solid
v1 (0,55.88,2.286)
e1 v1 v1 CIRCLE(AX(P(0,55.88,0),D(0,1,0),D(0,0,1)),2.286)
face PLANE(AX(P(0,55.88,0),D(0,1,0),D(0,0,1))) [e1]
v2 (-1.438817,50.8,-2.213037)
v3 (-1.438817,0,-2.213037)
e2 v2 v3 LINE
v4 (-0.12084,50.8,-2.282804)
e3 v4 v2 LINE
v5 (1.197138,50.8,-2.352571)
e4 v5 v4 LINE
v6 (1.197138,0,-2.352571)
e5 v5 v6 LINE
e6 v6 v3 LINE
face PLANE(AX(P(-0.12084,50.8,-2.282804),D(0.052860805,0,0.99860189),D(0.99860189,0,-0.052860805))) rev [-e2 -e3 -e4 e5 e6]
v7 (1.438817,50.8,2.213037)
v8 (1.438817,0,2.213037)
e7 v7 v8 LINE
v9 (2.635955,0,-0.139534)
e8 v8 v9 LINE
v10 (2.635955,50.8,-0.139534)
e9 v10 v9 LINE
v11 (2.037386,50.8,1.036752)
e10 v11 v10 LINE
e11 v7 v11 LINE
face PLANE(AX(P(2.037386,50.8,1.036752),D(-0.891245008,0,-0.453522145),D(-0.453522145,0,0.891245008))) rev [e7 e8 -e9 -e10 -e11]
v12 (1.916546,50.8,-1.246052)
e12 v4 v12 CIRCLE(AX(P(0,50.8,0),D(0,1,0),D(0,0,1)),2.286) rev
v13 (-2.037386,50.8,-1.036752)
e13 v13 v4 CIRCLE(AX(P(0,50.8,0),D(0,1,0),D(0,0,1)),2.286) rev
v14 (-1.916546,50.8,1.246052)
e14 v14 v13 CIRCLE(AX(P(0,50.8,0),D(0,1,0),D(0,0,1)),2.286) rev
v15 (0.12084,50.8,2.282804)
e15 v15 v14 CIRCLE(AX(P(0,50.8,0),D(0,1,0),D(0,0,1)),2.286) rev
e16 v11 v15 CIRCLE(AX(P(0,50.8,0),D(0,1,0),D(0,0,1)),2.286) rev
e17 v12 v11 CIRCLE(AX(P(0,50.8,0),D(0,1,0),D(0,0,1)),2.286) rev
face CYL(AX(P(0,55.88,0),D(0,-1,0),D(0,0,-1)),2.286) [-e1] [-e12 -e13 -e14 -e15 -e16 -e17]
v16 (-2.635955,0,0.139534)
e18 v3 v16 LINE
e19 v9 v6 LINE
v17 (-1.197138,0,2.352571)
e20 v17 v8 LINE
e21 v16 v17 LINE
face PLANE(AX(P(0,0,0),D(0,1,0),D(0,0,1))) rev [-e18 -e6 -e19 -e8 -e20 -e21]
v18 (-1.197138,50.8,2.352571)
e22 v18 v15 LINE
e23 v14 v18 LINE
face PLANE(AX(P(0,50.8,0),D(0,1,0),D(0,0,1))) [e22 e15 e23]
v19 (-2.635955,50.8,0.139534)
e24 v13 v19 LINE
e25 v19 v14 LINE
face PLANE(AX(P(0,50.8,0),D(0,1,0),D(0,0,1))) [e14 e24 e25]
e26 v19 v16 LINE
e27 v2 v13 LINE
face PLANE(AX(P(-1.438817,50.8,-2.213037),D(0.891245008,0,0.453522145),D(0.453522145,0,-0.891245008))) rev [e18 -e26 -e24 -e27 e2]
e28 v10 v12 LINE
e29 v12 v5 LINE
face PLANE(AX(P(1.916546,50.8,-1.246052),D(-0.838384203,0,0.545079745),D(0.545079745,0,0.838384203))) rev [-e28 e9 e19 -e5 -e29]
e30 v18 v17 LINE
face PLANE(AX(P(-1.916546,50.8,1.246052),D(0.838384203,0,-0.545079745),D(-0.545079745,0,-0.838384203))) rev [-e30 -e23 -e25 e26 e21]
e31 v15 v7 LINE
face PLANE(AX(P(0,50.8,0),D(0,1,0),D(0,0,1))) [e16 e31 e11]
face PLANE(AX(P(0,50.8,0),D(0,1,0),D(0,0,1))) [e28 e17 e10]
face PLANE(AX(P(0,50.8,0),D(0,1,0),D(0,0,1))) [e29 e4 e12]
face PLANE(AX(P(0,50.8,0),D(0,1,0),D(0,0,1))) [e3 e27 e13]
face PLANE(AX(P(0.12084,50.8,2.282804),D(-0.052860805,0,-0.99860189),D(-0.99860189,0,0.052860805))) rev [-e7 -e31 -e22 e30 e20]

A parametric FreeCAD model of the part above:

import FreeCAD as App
import Part
import Sketcher
from FreeCAD import Vector
Q = App.Units.Quantity


def add_polygon(sketch, points):
    """Adds a closed chain of lines whose ends are joined by coincident constraints."""
    first, n = sketch.GeometryCount, len(points)
    for a, b in zip(points, points[1:] + points[:1]):
        sketch.addGeometry(Part.LineSegment(App.Vector(*a, 0), App.Vector(*b, 0)), False)
    for i in range(n):
        sketch.addConstraint(Sketcher.Constraint("Coincident", first + i, 2, first + (i + 1) % n, 1))

doc = App.newDocument("Part")
body = doc.addObject("PartDesign::Body", "Body")

# Sketch on XZ plane
sketch1 = body.newObject("Sketcher::SketchObject", "Sketch")
sketch1.AttachmentSupport = (doc.getObject("XZ_Plane"), [""])
sketch1.MapMode = "FlatFace"
add_polygon(sketch1, [(1.4, 2.2), (2.6, -0.1), (1.2, -2.4), (-1.4, -2.2), (-2.6, 0.1), (-1.2, 2.4)])  # lines 0-5
sketch1.addConstraint(Sketcher.Constraint("Symmetric", 0, 2, 3, 2, -1, 1))
sketch1.addConstraint(Sketcher.Constraint("Symmetric", 1, 2, 4, 2, -1, 1))
sketch1.addConstraint(Sketcher.Constraint("Symmetric", 2, 2, 5, 2, -1, 1))
sketch1.addConstraint(Sketcher.Constraint("Equal", 0, 1))
sketch1.addConstraint(Sketcher.Constraint("Equal", 1, 2))
sketch1.addConstraint(Sketcher.Constraint("DistanceY", 1, 2, -1, 1, Q("2.352571 mm")))
sketch1.addConstraint(Sketcher.Constraint("DistanceY", 2, 2, 3, 2, Q("2.352571 mm")))
sketch1.addConstraint(Sketcher.Constraint("DistanceX", 3, 2, 0, 2, Q("5.27191 mm")))
sketch1.addConstraint(Sketcher.Constraint("DistanceX", 2, 2, 4, 2, Q("0.24168 mm")))
pad1 = body.newObject("PartDesign::Pad", "Pad")
pad1.Profile = sketch1
pad1.Length = Q("2 in")
pad1.Reversed = True

# Sketch on XZ plane
sketch2 = body.newObject("Sketcher::SketchObject", "Sketch001")
sketch2.AttachmentSupport = (doc.getObject("XZ_Plane"), [""])
sketch2.MapMode = "FlatFace"
sketch2.addGeometry(Part.Circle(Vector(0, 0, 0), Vector(0, 0, 1), 2.3), False)
sketch2.addConstraint(Sketcher.Constraint("Coincident", 0, 3, -1, 1))
sketch2.addConstraint(Sketcher.Constraint("Diameter", 0, Q("0.18 in")))
pad2 = body.newObject("PartDesign::Pad", "Pad001")
pad2.Profile = sketch2
pad2.Length = Q("2.2 in")
pad2.Reversed = True

doc.recompute()
